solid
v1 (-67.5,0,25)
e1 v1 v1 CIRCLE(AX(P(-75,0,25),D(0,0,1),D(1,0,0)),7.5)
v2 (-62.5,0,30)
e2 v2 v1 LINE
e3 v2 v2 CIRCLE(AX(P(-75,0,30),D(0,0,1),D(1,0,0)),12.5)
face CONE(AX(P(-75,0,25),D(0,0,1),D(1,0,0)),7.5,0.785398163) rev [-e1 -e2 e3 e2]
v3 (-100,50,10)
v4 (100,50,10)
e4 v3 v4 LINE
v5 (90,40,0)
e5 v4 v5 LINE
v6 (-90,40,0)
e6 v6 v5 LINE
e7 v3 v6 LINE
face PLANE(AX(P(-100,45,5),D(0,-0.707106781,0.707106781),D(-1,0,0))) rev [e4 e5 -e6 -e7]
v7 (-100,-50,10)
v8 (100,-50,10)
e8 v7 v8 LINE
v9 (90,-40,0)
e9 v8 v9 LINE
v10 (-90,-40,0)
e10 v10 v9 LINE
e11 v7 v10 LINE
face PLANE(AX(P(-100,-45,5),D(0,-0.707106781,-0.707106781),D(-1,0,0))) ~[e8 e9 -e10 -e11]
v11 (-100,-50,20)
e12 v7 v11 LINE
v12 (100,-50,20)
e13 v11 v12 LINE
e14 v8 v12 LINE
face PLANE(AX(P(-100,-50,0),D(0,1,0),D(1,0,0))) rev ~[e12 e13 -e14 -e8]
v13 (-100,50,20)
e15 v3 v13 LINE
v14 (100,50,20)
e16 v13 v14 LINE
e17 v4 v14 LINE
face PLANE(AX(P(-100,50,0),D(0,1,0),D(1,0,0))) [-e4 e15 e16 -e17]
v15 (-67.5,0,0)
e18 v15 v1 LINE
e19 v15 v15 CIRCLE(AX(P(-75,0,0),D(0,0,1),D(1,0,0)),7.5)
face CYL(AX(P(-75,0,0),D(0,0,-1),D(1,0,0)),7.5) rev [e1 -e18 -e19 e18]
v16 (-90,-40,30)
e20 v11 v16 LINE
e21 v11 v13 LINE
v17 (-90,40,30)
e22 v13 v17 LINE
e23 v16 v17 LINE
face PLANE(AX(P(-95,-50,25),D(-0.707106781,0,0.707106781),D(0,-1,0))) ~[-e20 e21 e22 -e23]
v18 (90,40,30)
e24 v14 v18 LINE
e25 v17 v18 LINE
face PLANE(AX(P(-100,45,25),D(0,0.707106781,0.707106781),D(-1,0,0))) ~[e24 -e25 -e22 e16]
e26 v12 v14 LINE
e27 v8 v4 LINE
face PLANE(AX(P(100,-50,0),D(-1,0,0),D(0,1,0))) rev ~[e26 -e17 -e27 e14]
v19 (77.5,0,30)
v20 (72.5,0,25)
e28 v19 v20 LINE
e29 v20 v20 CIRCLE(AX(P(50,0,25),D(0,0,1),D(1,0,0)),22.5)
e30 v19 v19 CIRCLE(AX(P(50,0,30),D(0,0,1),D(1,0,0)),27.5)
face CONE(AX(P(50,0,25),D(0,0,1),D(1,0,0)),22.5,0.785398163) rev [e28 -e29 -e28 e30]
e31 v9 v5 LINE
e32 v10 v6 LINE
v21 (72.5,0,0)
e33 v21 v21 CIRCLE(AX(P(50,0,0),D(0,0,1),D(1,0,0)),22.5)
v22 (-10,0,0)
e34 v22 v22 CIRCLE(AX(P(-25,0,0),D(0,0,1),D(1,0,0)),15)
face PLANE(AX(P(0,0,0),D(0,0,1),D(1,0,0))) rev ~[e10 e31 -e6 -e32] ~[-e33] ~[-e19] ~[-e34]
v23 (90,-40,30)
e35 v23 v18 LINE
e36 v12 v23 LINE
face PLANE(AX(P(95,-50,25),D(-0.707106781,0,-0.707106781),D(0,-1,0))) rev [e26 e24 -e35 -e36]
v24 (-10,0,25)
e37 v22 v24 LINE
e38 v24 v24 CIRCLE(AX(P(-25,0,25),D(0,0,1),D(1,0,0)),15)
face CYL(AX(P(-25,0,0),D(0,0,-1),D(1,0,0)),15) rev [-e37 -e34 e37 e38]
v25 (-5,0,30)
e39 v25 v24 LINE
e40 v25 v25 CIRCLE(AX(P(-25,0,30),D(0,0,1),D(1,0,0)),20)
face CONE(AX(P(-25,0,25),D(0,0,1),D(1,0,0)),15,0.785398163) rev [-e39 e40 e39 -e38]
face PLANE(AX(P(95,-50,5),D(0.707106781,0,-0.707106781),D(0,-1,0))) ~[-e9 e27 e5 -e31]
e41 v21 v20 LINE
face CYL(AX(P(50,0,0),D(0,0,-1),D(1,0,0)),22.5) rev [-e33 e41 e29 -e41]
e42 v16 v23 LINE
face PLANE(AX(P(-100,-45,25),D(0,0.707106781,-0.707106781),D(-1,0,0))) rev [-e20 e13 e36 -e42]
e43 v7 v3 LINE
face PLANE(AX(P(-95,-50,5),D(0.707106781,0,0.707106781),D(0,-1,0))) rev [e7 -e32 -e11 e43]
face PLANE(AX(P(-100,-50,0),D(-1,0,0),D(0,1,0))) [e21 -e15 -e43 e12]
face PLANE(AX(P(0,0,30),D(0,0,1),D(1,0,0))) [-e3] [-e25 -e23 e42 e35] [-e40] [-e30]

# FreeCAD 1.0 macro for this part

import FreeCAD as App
import Part
import Sketcher
Q = App.Units.Quantity


def edges_at(feature, points):
    """Names of the edges that pass closest to the given points."""
    edges = feature.Shape.Edges
    near = lambda p: min(range(len(edges)), key=lambda i: edges[i].distToShape(Part.Vertex(*p))[0])
    return sorted({f"Edge{near(p) + 1}" for p in points})


def add_polygon(sketch, points):
    """Adds a closed chain of lines whose ends are joined by coincident constraints."""
    first, n = sketch.GeometryCount, len(points)
    for a, b in zip(points, points[1:] + points[:1]):
        sketch.addGeometry(Part.LineSegment(App.Vector(*a, 0), App.Vector(*b, 0)), False)
    for i in range(n):
        sketch.addConstraint(Sketcher.Constraint("Coincident", first + i, 2, first + (i + 1) % n, 1))

doc = App.newDocument("Part")
body = doc.addObject("PartDesign::Body", "Body")

# Sketch on XY plane
sketch1 = body.newObject("Sketcher::SketchObject", "Sketch")
sketch1.AttachmentSupport = (doc.getObject("XY_Plane"), [""])
sketch1.MapMode = "FlatFace"
add_polygon(sketch1, [(-100, 50), (-100, -50), (100, -50), (100, 50)])  # lines 0-3
sketch1.addGeometry(Part.Circle(App.Vector(-75, 0, 0), App.Vector(0, 0, 1), 8), False)  # 4
sketch1.addGeometry(Part.Circle(App.Vector(-25, 0, 0), App.Vector(0, 0, 1), 15), False)  # 5
sketch1.addGeometry(Part.Circle(App.Vector(50, 0, 0), App.Vector(0, 0, 1), 22), False)  # 6
sketch1.addConstraint([
    Sketcher.Constraint("Vertical", 0),
    Sketcher.Constraint("Horizontal", 1),
    Sketcher.Constraint("Vertical", 2),
    Sketcher.Constraint("Horizontal", 3),
    Sketcher.Constraint("Symmetric", 0, 2, 2, 2, -1, 1),
    Sketcher.Constraint("PointOnObject", 4, 3, -1),
    Sketcher.Constraint("PointOnObject", 5, 3, -1),
    Sketcher.Constraint("PointOnObject", 6, 3, -1),
    Sketcher.Constraint("Diameter", 4, Q("15 mm")),
    Sketcher.Constraint("Diameter", 5, Q("30 mm")),
    Sketcher.Constraint("Diameter", 6, Q("45 mm")),
    Sketcher.Constraint("DistanceX", 1, 1, 1, 2, Q("200 mm")),
    Sketcher.Constraint("DistanceY", 0, 2, 0, 1, Q("100 mm")),
    Sketcher.Constraint("DistanceX", 4, 3, -1, 1, Q("75 mm")),
    Sketcher.Constraint("DistanceX", 5, 3, -1, 1, Q("25 mm")),
    Sketcher.Constraint("DistanceX", -1, 1, 6, 3, Q("50 mm")),
])
pad1 = body.newObject("PartDesign::Pad", "Pad")
pad1.Profile = sketch1
pad1.Length = 30
doc.recompute()

chamfer = body.newObject("PartDesign::Chamfer", "Chamfer")
chamfer.Base = (pad1, edges_at(pad1, [
    (-100, 0, 30),
    (0, -50, 30),
    (100, 0, 30),
    (0, 50, 30),
    (0, -50, 0),
    (-100, 0, 0),
    (100, 0, 0),
    (0, 50, 0),
]))
chamfer.Size = 10
doc.recompute()

chamfer2 = body.newObject("PartDesign::Chamfer", "Chamfer001")
chamfer2.Base = (chamfer, edges_at(chamfer, [(-82.5, 0, 30), (-40, 0, 30), (27.5, 0, 30)]))
chamfer2.Size = 5

doc.recompute()
